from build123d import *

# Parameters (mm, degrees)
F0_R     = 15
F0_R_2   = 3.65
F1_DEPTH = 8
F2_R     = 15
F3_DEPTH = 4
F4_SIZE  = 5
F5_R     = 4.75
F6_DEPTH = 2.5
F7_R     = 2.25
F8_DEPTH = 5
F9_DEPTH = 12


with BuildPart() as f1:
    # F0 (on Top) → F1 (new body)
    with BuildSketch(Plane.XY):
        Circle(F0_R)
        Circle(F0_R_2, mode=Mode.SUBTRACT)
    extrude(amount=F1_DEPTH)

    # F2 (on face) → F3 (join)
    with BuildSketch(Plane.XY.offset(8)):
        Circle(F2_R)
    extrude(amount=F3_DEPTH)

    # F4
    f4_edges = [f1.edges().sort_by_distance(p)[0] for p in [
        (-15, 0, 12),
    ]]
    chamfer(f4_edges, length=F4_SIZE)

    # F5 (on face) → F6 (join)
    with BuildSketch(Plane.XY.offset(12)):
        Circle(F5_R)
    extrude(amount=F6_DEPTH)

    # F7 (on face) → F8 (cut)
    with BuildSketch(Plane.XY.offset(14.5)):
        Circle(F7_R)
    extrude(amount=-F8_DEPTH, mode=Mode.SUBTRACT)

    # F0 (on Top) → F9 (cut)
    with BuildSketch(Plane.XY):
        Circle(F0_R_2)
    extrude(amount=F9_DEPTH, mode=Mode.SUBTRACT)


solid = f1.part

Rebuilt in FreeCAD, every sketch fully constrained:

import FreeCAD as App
import Part
import Sketcher
from FreeCAD import Vector
Q = App.Units.Quantity


def edges_at(feature, points):
    """Names of the edges that pass closest to the given points."""
    edges = feature.Shape.Edges
    near = lambda p: min(range(len(edges)), key=lambda i: edges[i].distToShape(Part.Vertex(*p))[0])
    return sorted({f"Edge{near(p) + 1}" for p in points})

doc = App.newDocument("Part")
body = doc.addObject("PartDesign::Body", "Body")

# Sketch on XY plane
sketch1 = doc.addObject("Sketcher::SketchObject", "Sketch")
body.addObject(sketch1)
sketch1.AttachmentSupport = (doc.XY_Plane, [""])
sketch1.MapMode = "FlatFace"
sketch1.addGeometry(Part.Circle(Vector(0, 0, 0), Vector(0, 0, 1), 15), False)
sketch1.addGeometry(Part.Circle(Vector(0, 0, 0), Vector(0, 0, 1), 3.6), False)
sketch1.addConstraint(Sketcher.Constraint("Coincident", 0, 3, -1, 1))
sketch1.addConstraint(Sketcher.Constraint("Coincident", 1, 3, -1, 1))
sketch1.addConstraint(Sketcher.Constraint("Diameter", 0, Q("30 mm")))
sketch1.addConstraint(Sketcher.Constraint("Diameter", 1, Q("7.3 mm")))
pad1 = doc.addObject("PartDesign::Pad", "Pad")
body.addObject(pad1)
pad1.Profile = sketch1
pad1.Length = 8

# Sketch on XY plane
sketch2 = doc.addObject("Sketcher::SketchObject", "Sketch001")
body.addObject(sketch2)
sketch2.AttachmentSupport = (doc.XY_Plane, [""])
sketch2.MapMode = "FlatFace"
sketch2.AttachmentOffset = App.Placement(Vector(0, 0, 8), App.Rotation())
sketch2.addGeometry(Part.Circle(Vector(0, 0, 0), Vector(0, 0, 1), 15), False)
sketch2.addConstraint(Sketcher.Constraint("Coincident", 0, 3, -1, 1))
sketch2.addConstraint(Sketcher.Constraint("Diameter", 0, Q("30 mm")))
pad2 = doc.addObject("PartDesign::Pad", "Pad001")
body.addObject(pad2)
pad2.Profile = sketch2
pad2.Length = 4
doc.recompute()

chamfer = doc.addObject("PartDesign::Chamfer", "Chamfer")
body.addObject(chamfer)
chamfer.Base = (pad2, edges_at(pad2, [(-15, 0, 12)]))
chamfer.Size = 5

# Sketch on XY plane
sketch3 = doc.addObject("Sketcher::SketchObject", "Sketch002")
body.addObject(sketch3)
sketch3.AttachmentSupport = (doc.XY_Plane, [""])
sketch3.MapMode = "FlatFace"
sketch3.AttachmentOffset = App.Placement(Vector(0, 0, 12), App.Rotation())
sketch3.addGeometry(Part.Circle(Vector(0, 0, 0), Vector(0, 0, 1), 4.8), False)
sketch3.addConstraint(Sketcher.Constraint("Coincident", 0, 3, -1, 1))
sketch3.addConstraint(Sketcher.Constraint("Diameter", 0, Q("9.5 mm")))
pad3 = doc.addObject("PartDesign::Pad", "Pad002")
body.addObject(pad3)
pad3.Profile = sketch3
pad3.Length = 2.5

# Sketch on XY plane
sketch4 = doc.addObject("Sketcher::SketchObject", "Sketch003")
body.addObject(sketch4)
sketch4.AttachmentSupport = (doc.XY_Plane, [""])
sketch4.MapMode = "FlatFace"
sketch4.AttachmentOffset = App.Placement(Vector(0, 0, 14.5), App.Rotation())
sketch4.addGeometry(Part.Circle(Vector(0, 0, 0), Vector(0, 0, 1), 2.2), False)
sketch4.addConstraint(Sketcher.Constraint("Coincident", 0, 3, -1, 1))
sketch4.addConstraint(Sketcher.Constraint("Diameter", 0, Q("4.5 mm")))
pocket1 = doc.addObject("PartDesign::Pocket", "Pocket")
body.addObject(pocket1)
pocket1.Profile = sketch4
pocket1.Length = 5

# Sketch on XY plane
sketch5 = doc.addObject("Sketcher::SketchObject", "Sketch004")
body.addObject(sketch5)
sketch5.AttachmentSupport = (doc.XY_Plane, [""])
sketch5.MapMode = "FlatFace"
sketch5.addGeometry(Part.Circle(Vector(0, 0, 0), Vector(0, 0, 1), 3.6), False)
sketch5.addConstraint(Sketcher.Constraint("Coincident", 0, 3, -1, 1))
sketch5.addConstraint(Sketcher.Constraint("Diameter", 0, Q("7.3 mm")))
pocket2 = doc.addObject("PartDesign::Pocket", "Pocket001")
body.addObject(pocket2)
pocket2.Profile = sketch5
pocket2.Length = 12
pocket2.Reversed = True

doc.recompute()
